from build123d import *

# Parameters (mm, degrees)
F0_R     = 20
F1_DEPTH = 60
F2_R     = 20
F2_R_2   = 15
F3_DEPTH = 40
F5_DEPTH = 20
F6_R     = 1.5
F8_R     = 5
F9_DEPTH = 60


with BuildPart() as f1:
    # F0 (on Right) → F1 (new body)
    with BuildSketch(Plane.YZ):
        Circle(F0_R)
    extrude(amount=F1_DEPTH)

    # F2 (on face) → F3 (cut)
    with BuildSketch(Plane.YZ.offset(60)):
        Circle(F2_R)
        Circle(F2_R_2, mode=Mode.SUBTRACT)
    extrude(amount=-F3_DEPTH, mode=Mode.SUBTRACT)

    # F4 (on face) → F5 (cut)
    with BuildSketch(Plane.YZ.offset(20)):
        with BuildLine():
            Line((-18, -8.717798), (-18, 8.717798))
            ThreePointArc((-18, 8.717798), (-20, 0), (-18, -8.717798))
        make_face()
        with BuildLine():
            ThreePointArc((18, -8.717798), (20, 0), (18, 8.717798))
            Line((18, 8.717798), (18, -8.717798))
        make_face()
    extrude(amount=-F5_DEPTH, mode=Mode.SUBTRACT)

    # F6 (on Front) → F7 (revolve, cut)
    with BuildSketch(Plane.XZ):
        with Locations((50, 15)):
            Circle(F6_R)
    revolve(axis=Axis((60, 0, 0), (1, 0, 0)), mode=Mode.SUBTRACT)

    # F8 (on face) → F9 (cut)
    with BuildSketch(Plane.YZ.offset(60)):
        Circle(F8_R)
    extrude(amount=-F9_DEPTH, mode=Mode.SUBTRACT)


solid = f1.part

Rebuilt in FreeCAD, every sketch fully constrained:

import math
import FreeCAD as App
import Part
import Sketcher

V = App.Vector

doc = App.newDocument("Part")
body = doc.addObject("PartDesign::Body", "Body")

# Sketch on YZ plane
sketch1 = body.newObject("Sketcher::SketchObject", "Sketch")
sketch1.AttachmentSupport = (doc.getObject("YZ_Plane"), [""])
sketch1.MapMode = "FlatFace"
sketch1.addGeometry(Part.Circle(V(0, 0, 0), V(0, 0, 1), 20), False)
sketch1.addConstraint(Sketcher.Constraint("Coincident", 0, 3, -1, 1))
sketch1.addConstraint(Sketcher.Constraint("Diameter", 0, 40.0))
pad1 = body.newObject("PartDesign::Pad", "Pad")
pad1.Profile = sketch1
pad1.Length = 60

# Sketch on YZ plane
sketch2 = body.newObject("Sketcher::SketchObject", "Sketch001")
sketch2.AttachmentSupport = (doc.getObject("YZ_Plane"), [""])
sketch2.MapMode = "FlatFace"
sketch2.AttachmentOffset = App.Placement(V(0, 0, 60), App.Rotation())
sketch2.addGeometry(Part.Circle(V(0, 0, 0), V(0, 0, 1), 20), False)
sketch2.addGeometry(Part.Circle(V(0, 0, 0), V(0, 0, 1), 15), False)
sketch2.addConstraint(Sketcher.Constraint("Coincident", 0, 3, -1, 1))
sketch2.addConstraint(Sketcher.Constraint("Coincident", 1, 3, -1, 1))
sketch2.addConstraint(Sketcher.Constraint("Diameter", 0, 40.0))
sketch2.addConstraint(Sketcher.Constraint("Diameter", 1, 30.0))
pocket1 = body.newObject("PartDesign::Pocket", "Pocket")
pocket1.Profile = sketch2
pocket1.Length = 40

# Sketch on YZ plane
sketch3 = body.newObject("Sketcher::SketchObject", "Sketch002")
sketch3.AttachmentSupport = (doc.getObject("YZ_Plane"), [""])
sketch3.MapMode = "FlatFace"
sketch3.AttachmentOffset = App.Placement(V(0, 0, 20), App.Rotation())
sketch3.addGeometry(Part.LineSegment(V(-18, -9, 0), V(-18, 9, 0)), False)
sketch3.addGeometry(Part.ArcOfCircle(Part.Circle(V(0, 0, 0), V(0, 0, 1), 20), math.radians(154), math.radians(206)), False)
sketch3.addGeometry(Part.ArcOfCircle(Part.Circle(V(0, 0, 0), V(0, 0, 1), 20), math.radians(-26), math.radians(26)), False)
sketch3.addGeometry(Part.LineSegment(V(18, 9, 0), V(18, -9, 0)), False)
sketch3.addConstraint(Sketcher.Constraint("Coincident", 0, 1, 1, 2))
sketch3.addConstraint(Sketcher.Constraint("Coincident", 1, 1, 0, 2))
sketch3.addConstraint(Sketcher.Constraint("Coincident", 2, 1, 3, 2))
sketch3.addConstraint(Sketcher.Constraint("Coincident", 3, 1, 2, 2))
sketch3.addConstraint(Sketcher.Constraint("Vertical", 0))
sketch3.addConstraint(Sketcher.Constraint("Vertical", 3))
sketch3.addConstraint(Sketcher.Constraint("Coincident", 1, 3, -1, 1))
sketch3.addConstraint(Sketcher.Constraint("Coincident", 2, 3, -1, 1))
sketch3.addConstraint(Sketcher.Constraint("Equal", 1, 2))
sketch3.addConstraint(Sketcher.Constraint("Horizontal", 0, 1, 2, 1))
sketch3.addConstraint(Sketcher.Constraint("Radius", 1, 20.0))
sketch3.addConstraint(Sketcher.Constraint("DistanceX", 0, 1, -1, 1, 18.0))
pocket2 = body.newObject("PartDesign::Pocket", "Pocket001")
pocket2.Profile = sketch3
pocket2.Length = 20

# Sketch on XZ plane
sketch4 = body.newObject("Sketcher::SketchObject", "Sketch003")
sketch4.AttachmentSupport = (doc.getObject("XZ_Plane"), [""])
sketch4.MapMode = "FlatFace"
sketch4.addGeometry(Part.Circle(V(50, 15, 0), V(0, 0, 1), 1.5), False)
sketch4.addConstraint(Sketcher.Constraint("Diameter", 0, 3.0))
sketch4.addConstraint(Sketcher.Constraint("DistanceX", -1, 1, 0, 3, 50.0))
sketch4.addConstraint(Sketcher.Constraint("DistanceY", -1, 1, 0, 3, 15.0))
groove = body.newObject("PartDesign::Groove", "Groove")
groove.Profile = sketch4
groove.ReferenceAxis = (sketch4, ["H_Axis"])
groove.Angle = 360

# Sketch on YZ plane
sketch5 = body.newObject("Sketcher::SketchObject", "Sketch004")
sketch5.AttachmentSupport = (doc.getObject("YZ_Plane"), [""])
sketch5.MapMode = "FlatFace"
sketch5.AttachmentOffset = App.Placement(V(0, 0, 60), App.Rotation())
sketch5.addGeometry(Part.Circle(V(0, 0, 0), V(0, 0, 1), 5), False)
sketch5.addConstraint(Sketcher.Constraint("Coincident", 0, 3, -1, 1))
sketch5.addConstraint(Sketcher.Constraint("Diameter", 0, 10.0))
pocket3 = body.newObject("PartDesign::Pocket", "Pocket002")
pocket3.Profile = sketch5
pocket3.Length = 60

doc.recompute()
